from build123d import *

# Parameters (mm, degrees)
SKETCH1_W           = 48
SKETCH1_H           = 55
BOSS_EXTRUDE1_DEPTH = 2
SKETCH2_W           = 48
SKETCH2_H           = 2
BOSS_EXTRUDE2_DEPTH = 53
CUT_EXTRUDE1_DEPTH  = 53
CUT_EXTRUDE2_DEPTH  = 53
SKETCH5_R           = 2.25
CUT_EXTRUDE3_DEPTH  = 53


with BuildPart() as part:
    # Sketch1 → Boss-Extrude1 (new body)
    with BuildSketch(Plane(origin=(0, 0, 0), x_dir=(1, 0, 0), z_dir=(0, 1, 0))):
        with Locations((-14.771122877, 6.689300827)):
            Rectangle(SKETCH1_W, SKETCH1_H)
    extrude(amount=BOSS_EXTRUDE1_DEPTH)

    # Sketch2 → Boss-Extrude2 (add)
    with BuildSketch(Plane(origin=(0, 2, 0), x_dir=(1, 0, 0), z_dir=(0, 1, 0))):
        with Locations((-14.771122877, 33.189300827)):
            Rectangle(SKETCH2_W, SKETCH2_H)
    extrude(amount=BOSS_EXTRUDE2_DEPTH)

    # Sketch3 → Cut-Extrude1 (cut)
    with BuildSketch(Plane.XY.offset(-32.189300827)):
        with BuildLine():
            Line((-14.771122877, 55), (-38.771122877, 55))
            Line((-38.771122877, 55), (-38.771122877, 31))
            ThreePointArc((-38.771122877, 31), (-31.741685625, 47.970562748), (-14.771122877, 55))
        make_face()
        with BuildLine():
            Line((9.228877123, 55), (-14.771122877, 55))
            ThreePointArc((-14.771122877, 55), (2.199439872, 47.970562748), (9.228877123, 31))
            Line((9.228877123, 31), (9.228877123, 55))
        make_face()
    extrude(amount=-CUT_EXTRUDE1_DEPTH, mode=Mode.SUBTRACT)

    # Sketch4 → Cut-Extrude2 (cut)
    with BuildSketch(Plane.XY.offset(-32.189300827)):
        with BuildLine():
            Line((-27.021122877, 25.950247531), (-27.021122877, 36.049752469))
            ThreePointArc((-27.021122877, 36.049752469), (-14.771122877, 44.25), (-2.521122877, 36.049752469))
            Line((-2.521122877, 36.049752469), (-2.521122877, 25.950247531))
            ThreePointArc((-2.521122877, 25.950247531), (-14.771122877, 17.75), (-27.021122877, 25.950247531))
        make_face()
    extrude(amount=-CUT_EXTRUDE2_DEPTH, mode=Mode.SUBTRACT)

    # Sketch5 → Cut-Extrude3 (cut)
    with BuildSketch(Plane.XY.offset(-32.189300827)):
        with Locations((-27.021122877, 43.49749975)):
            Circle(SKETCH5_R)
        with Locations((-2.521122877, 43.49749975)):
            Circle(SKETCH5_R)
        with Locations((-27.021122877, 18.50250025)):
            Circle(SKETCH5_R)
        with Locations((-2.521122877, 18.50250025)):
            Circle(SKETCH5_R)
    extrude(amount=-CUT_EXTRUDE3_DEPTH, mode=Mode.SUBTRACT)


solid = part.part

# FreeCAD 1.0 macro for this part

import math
import FreeCAD as App
import Part
import Sketcher

V = App.Vector
Q = App.Units.Quantity

doc = App.newDocument("Part")
body = doc.addObject("PartDesign::Body", "Body")

# Sketch on XZ plane
sketch1 = body.newObject("Sketcher::SketchObject", "Sketch")
sketch1.AttachmentSupport = (doc.getObject("XZ_Plane"), [""])
sketch1.MapMode = "FlatFace"
sketch1.addGeometry([
    Part.LineSegment(V(-39, -34, 0), V(-39, 21, 0)),
    Part.LineSegment(V(-39, 21, 0), V(9, 21, 0)),
    Part.LineSegment(V(9, 21, 0), V(9, -34, 0)),
    Part.LineSegment(V(9, -34, 0), V(-39, -34, 0)),
], False)
sketch1.addConstraint([
    Sketcher.Constraint("Coincident", 0, 2, 1, 1),
    Sketcher.Constraint("Coincident", 1, 2, 2, 1),
    Sketcher.Constraint("Coincident", 2, 2, 3, 1),
    Sketcher.Constraint("Coincident", 3, 2, 0, 1),
    Sketcher.Constraint("Vertical", 0),
    Sketcher.Constraint("Horizontal", 1),
    Sketcher.Constraint("Vertical", 2),
    Sketcher.Constraint("Horizontal", 3),
    Sketcher.Constraint("DistanceX", 1, 1, 1, 2, Q("48 mm")),
    Sketcher.Constraint("DistanceY", 0, 1, 0, 2, Q("55 mm")),
    Sketcher.Constraint("DistanceY", -1, 1, 0, 2, Q("20.810699 mm")),
    Sketcher.Constraint("DistanceX", 0, 2, -1, 1, Q("38.771123 mm")),
])
pad1 = body.newObject("PartDesign::Pad", "Pad")
pad1.Profile = sketch1
pad1.Length = 2
pad1.Reversed = True

# Sketch on XZ plane
sketch2 = body.newObject("Sketcher::SketchObject", "Sketch001")
sketch2.AttachmentSupport = (doc.getObject("XZ_Plane"), [""])
sketch2.MapMode = "FlatFace"
sketch2.AttachmentOffset = App.Placement(V(0, 0, -2), App.Rotation())
sketch2.addGeometry([
    Part.LineSegment(V(-38.8, -34.2, 0), V(-38.8, -32.2, 0)),
    Part.LineSegment(V(-38.8, -32.2, 0), V(9.2, -32.2, 0)),
    Part.LineSegment(V(9.2, -32.2, 0), V(9.2, -34.2, 0)),
    Part.LineSegment(V(9.2, -34.2, 0), V(-38.8, -34.2, 0)),
], False)
sketch2.addConstraint([
    Sketcher.Constraint("Coincident", 0, 2, 1, 1),
    Sketcher.Constraint("Coincident", 1, 2, 2, 1),
    Sketcher.Constraint("Coincident", 2, 2, 3, 1),
    Sketcher.Constraint("Coincident", 3, 2, 0, 1),
    Sketcher.Constraint("Vertical", 0),
    Sketcher.Constraint("Horizontal", 1),
    Sketcher.Constraint("Vertical", 2),
    Sketcher.Constraint("Horizontal", 3),
    Sketcher.Constraint("DistanceX", 1, 1, 1, 2, Q("48 mm")),
    Sketcher.Constraint("DistanceY", 0, 1, 0, 2, Q("2 mm")),
    Sketcher.Constraint("DistanceY", 0, 2, -1, 1, Q("32.189301 mm")),
    Sketcher.Constraint("DistanceX", 0, 2, -1, 1, Q("38.771123 mm")),
])
pad2 = body.newObject("PartDesign::Pad", "Pad001")
pad2.Profile = sketch2
pad2.Length = 53
pad2.Reversed = True

# Sketch on XY plane
sketch3 = body.newObject("Sketcher::SketchObject", "Sketch002")
sketch3.AttachmentSupport = (doc.getObject("XY_Plane"), [""])
sketch3.MapMode = "FlatFace"
sketch3.AttachmentOffset = App.Placement(V(0, 0, -32.189301), App.Rotation())
sketch3.addGeometry([
    Part.LineSegment(V(-15, 55, 0), V(-39, 55, 0)),  # 0
    Part.LineSegment(V(-39, 55, 0), V(-39, 31, 0)),  # 1
    Part.ArcOfCircle(Part.Circle(V(-15, 31, 0), V(0, 0, 1), 24), math.radians(90), math.radians(180)),  # 2
    Part.LineSegment(V(9, 55, 0), V(-15, 55, 0)),  # 3
    Part.ArcOfCircle(Part.Circle(V(-15, 31, 0), V(0, 0, 1), 24), math.radians(0), math.radians(90)),  # 4
    Part.LineSegment(V(9, 31, 0), V(9, 55, 0)),  # 5
], False)
sketch3.addConstraint([
    Sketcher.Constraint("Coincident", 0, 2, 1, 1),
    Sketcher.Constraint("Tangent", 1, 2, 2, 2),
    Sketcher.Constraint("Tangent", 2, 1, 0, 1),
    Sketcher.Constraint("Tangent", 3, 2, 4, 2),
    Sketcher.Constraint("Tangent", 4, 1, 5, 1),
    Sketcher.Constraint("Coincident", 5, 2, 3, 1),
    Sketcher.Constraint("Horizontal", 0),
    Sketcher.Constraint("Vertical", 1),
    Sketcher.Constraint("Horizontal", 3),
    Sketcher.Constraint("Vertical", 5),
    Sketcher.Constraint("Coincident", 4, 3, 2, 3),
    Sketcher.Constraint("Equal", 2, 4),
    Sketcher.Constraint("Radius", 2, Q("24 mm")),
    Sketcher.Constraint("DistanceY", -1, 1, 2, 3, Q("31 mm")),
    Sketcher.Constraint("DistanceX", 2, 3, -1, 1, Q("14.771123 mm")),
])
pocket1 = body.newObject("PartDesign::Pocket", "Pocket")
pocket1.Profile = sketch3
pocket1.Length = 53

# Sketch on XY plane
sketch4 = body.newObject("Sketcher::SketchObject", "Sketch003")
sketch4.AttachmentSupport = (doc.getObject("XY_Plane"), [""])
sketch4.MapMode = "FlatFace"
sketch4.AttachmentOffset = App.Placement(V(0, 0, -32.189301), App.Rotation())
sketch4.addGeometry([
    Part.LineSegment(V(-27, 36, 0), V(-27, 26, 0)),
    Part.ArcOfCircle(Part.Circle(V(-15, 31, 0), V(0, 0, 1), 13), math.radians(-158), math.radians(-22)),
    Part.LineSegment(V(-3, 26, 0), V(-3, 36, 0)),
    Part.ArcOfCircle(Part.Circle(V(-15, 31, 0), V(0, 0, 1), 13), math.radians(22), math.radians(158)),
], False)
sketch4.addConstraint([
    Sketcher.Constraint("Coincident", 0, 2, 1, 1),
    Sketcher.Constraint("Coincident", 1, 2, 2, 1),
    Sketcher.Constraint("Coincident", 2, 2, 3, 1),
    Sketcher.Constraint("Coincident", 3, 2, 0, 1),
    Sketcher.Constraint("Vertical", 0),
    Sketcher.Constraint("Vertical", 2),
    Sketcher.Constraint("Coincident", 3, 3, 1, 3),
    Sketcher.Constraint("Equal", 1, 3),
    Sketcher.Constraint("Horizontal", 0, 2, 1, 2),
    Sketcher.Constraint("Radius", 1, Q("13.25 mm")),
    Sketcher.Constraint("DistanceY", -1, 1, 1, 3, Q("31 mm")),
    Sketcher.Constraint("DistanceX", 0, 2, 1, 2, Q("24.5 mm")),
    Sketcher.Constraint("DistanceX", 1, 3, -1, 1, Q("14.771123 mm")),
])
pocket2 = body.newObject("PartDesign::Pocket", "Pocket001")
pocket2.Profile = sketch4
pocket2.Length = 53

# Sketch on XY plane
sketch5 = body.newObject("Sketcher::SketchObject", "Sketch004")
sketch5.AttachmentSupport = (doc.getObject("XY_Plane"), [""])
sketch5.MapMode = "FlatFace"
sketch5.AttachmentOffset = App.Placement(V(0, 0, -32.189301), App.Rotation())
sketch5.addGeometry([
    Part.Circle(V(-27, 43.5, 0), V(0, 0, 1), 2.2),
    Part.Circle(V(-2.5, 43.5, 0), V(0, 0, 1), 2.2),
    Part.Circle(V(-27, 18.5, 0), V(0, 0, 1), 2.2),
    Part.Circle(V(-2.5, 18.5, 0), V(0, 0, 1), 2.2),
], False)
sketch5.addConstraint([
    Sketcher.Constraint("Equal", 0, 1),
    Sketcher.Constraint("Equal", 1, 2),
    Sketcher.Constraint("Equal", 2, 3),
    Sketcher.Constraint("Horizontal", 0, 3, 1, 3),
    Sketcher.Constraint("Horizontal", 2, 3, 3, 3),
    Sketcher.Constraint("Vertical", 0, 3, 2, 3),
    Sketcher.Constraint("Vertical", 1, 3, 3, 3),
    Sketcher.Constraint("Diameter", 0, Q("4.5 mm")),
    Sketcher.Constraint("DistanceX", 0, 3, 1, 3, Q("24.5 mm")),
    Sketcher.Constraint("DistanceY", 2, 3, 0, 3, Q("24.995 mm")),
    Sketcher.Constraint("DistanceY", -1, 1, 0, 3, Q("43.4975 mm")),
    Sketcher.Constraint("DistanceX", 0, 3, -1, 1, Q("27.021123 mm")),
])
pocket3 = body.newObject("PartDesign::Pocket", "Pocket002")
pocket3.Profile = sketch5
pocket3.Length = 53

doc.recompute()
